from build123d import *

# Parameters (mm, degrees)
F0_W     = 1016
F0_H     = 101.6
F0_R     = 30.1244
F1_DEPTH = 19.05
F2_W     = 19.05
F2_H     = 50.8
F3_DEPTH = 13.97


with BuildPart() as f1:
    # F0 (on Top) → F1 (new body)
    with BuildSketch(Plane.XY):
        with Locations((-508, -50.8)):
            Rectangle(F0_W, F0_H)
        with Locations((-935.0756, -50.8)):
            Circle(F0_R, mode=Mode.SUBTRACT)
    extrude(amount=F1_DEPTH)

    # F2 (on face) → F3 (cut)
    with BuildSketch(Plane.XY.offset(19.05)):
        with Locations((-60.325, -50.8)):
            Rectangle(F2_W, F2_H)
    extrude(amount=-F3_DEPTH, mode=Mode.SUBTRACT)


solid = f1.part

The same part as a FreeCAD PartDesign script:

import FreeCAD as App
import Part
import Sketcher
from FreeCAD import Vector
Q = App.Units.Quantity

doc = App.newDocument("Part")
body = doc.addObject("PartDesign::Body", "Body")

# Sketch on XY plane
sketch1 = body.newObject("Sketcher::SketchObject", "Sketch")
sketch1.AttachmentSupport = (doc.getObject("XY_Plane"), [""])
sketch1.MapMode = "FlatFace"
sketch1.addGeometry([
    Part.LineSegment(Vector(-1016, 0, 0), Vector(-1016, -102, 0)),  # 0
    Part.LineSegment(Vector(-1016, -102, 0), Vector(0, -102, 0)),  # 1
    Part.LineSegment(Vector(0, -102, 0), Vector(0, 0, 0)),  # 2
    Part.LineSegment(Vector(0, 0, 0), Vector(-1016, 0, 0)),  # 3
    Part.Circle(Vector(-935, -51, 0), Vector(0, 0, 1), 30),  # 4
], False)
sketch1.addConstraint([
    Sketcher.Constraint("Coincident", 0, 2, 1, 1),
    Sketcher.Constraint("Coincident", 1, 2, 2, 1),
    Sketcher.Constraint("Coincident", 2, 2, 3, 1),
    Sketcher.Constraint("Coincident", 3, 2, 0, 1),
    Sketcher.Constraint("Vertical", 0),
    Sketcher.Constraint("Horizontal", 1),
    Sketcher.Constraint("Vertical", 2),
    Sketcher.Constraint("Horizontal", 3),
    Sketcher.Constraint("Coincident", 2, 2, -1, 1),
    Sketcher.Constraint("DistanceX", 1, 1, 1, 2, Q("40 in")),
    Sketcher.Constraint("DistanceY", 0, 2, 0, 1, Q("4 in")),
    Sketcher.Constraint("Diameter", 4, Q("2.372 in")),
    Sketcher.Constraint("DistanceY", 4, 3, -1, 1, Q("2 in")),
    Sketcher.Constraint("DistanceX", 4, 3, -1, 1, Q("36.814 in")),
])
pad1 = body.newObject("PartDesign::Pad", "Pad")
pad1.Profile = sketch1
pad1.Length = Q("0.75 in")

# Sketch on XY plane
sketch2 = body.newObject("Sketcher::SketchObject", "Sketch001")
sketch2.AttachmentSupport = (doc.getObject("XY_Plane"), [""])
sketch2.MapMode = "FlatFace"
sketch2.AttachmentOffset = App.Placement(Vector(0, 0, 0.75 * 25.4), App.Rotation())
sketch2.addGeometry([
    Part.LineSegment(Vector(-70, -25, 0), Vector(-70, -76, 0)),
    Part.LineSegment(Vector(-70, -76, 0), Vector(-51, -76, 0)),
    Part.LineSegment(Vector(-51, -76, 0), Vector(-51, -25, 0)),
    Part.LineSegment(Vector(-51, -25, 0), Vector(-70, -25, 0)),
], False)
sketch2.addConstraint([
    Sketcher.Constraint("Coincident", 0, 2, 1, 1),
    Sketcher.Constraint("Coincident", 1, 2, 2, 1),
    Sketcher.Constraint("Coincident", 2, 2, 3, 1),
    Sketcher.Constraint("Coincident", 3, 2, 0, 1),
    Sketcher.Constraint("Vertical", 0),
    Sketcher.Constraint("Horizontal", 1),
    Sketcher.Constraint("Vertical", 2),
    Sketcher.Constraint("Horizontal", 3),
    Sketcher.Constraint("DistanceY", 0, 2, 0, 1, Q("2 in")),
    Sketcher.Constraint("DistanceY", 0, 2, -1, 1, Q("3 in")),
    Sketcher.Constraint("DistanceX", 1, 2, -1, 1, Q("2 in")),
    Sketcher.Constraint("DistanceX", 1, 1, 1, 2, Q("0.75 in")),
])
pocket1 = body.newObject("PartDesign::Pocket", "Pocket")
pocket1.Profile = sketch2
pocket1.Length = Q("0.55 in")

doc.recompute()
